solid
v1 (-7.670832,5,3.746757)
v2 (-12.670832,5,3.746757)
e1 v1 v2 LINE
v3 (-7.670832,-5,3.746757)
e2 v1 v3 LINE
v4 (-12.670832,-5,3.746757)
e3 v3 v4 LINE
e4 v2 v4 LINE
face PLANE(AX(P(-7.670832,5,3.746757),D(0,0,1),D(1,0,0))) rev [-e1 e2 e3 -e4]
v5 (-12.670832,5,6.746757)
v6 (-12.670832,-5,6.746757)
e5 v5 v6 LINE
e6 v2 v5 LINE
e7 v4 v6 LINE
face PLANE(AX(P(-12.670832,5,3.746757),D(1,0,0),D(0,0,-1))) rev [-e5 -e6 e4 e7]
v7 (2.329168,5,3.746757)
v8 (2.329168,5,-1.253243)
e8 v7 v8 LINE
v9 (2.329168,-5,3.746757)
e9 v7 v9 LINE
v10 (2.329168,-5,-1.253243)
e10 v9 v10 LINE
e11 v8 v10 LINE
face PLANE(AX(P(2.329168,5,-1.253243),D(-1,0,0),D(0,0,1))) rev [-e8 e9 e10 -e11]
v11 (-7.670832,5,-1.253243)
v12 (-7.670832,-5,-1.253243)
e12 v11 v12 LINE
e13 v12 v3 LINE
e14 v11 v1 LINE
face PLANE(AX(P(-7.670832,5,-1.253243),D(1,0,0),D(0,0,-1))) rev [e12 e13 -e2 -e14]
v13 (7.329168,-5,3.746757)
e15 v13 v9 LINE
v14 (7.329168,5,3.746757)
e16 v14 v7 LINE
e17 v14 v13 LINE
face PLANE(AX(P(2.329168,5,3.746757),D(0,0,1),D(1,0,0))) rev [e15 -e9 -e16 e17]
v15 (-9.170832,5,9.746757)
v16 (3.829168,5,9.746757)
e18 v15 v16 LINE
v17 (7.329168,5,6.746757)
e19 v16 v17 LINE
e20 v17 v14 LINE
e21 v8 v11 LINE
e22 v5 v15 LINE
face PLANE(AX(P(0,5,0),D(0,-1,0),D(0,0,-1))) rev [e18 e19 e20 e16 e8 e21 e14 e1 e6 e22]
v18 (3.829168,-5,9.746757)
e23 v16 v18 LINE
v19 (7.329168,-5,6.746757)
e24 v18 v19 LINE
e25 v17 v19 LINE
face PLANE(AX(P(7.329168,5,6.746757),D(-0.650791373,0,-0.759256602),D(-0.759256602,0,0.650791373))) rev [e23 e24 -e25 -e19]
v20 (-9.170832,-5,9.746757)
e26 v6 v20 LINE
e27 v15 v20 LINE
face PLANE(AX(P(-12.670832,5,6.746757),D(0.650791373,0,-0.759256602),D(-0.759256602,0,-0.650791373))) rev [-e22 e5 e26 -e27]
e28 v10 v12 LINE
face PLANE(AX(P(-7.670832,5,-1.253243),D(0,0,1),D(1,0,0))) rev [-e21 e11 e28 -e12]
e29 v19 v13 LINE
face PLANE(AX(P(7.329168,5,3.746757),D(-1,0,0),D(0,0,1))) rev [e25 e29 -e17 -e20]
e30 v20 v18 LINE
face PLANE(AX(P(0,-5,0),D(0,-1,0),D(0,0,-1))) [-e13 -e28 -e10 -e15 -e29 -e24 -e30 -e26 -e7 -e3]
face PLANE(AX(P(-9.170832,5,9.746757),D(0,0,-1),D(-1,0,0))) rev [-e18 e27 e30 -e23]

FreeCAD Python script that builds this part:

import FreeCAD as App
import Part
import Sketcher

V = App.Vector


def add_polygon(sketch, points):
    """Adds a closed chain of lines whose ends are joined by coincident constraints."""
    first, n = sketch.GeometryCount, len(points)
    for a, b in zip(points, points[1:] + points[:1]):
        sketch.addGeometry(Part.LineSegment(App.Vector(*a, 0), App.Vector(*b, 0)), False)
    for i in range(n):
        sketch.addConstraint(Sketcher.Constraint("Coincident", first + i, 2, first + (i + 1) % n, 1))

doc = App.newDocument("Part")
body = doc.addObject("PartDesign::Body", "Body")

# Sketch on XZ plane
sketch1 = body.newObject("Sketcher::SketchObject", "Sketch")
sketch1.AttachmentSupport = (doc.getObject("XZ_Plane"), [""])
sketch1.MapMode = "FlatFace"
add_polygon(sketch1, [(2.3, -1.3), (-7.7, -1.3), (-7.7, 3.7), (-12.7, 3.7), (-12.7, 6.7), (-9.2, 9.7), (3.8, 9.7), (7.3, 6.7), (7.3, 3.7), (2.3, 3.7)])  # lines 0-9
sketch1.addConstraint([
    Sketcher.Constraint("Horizontal", 0),
    Sketcher.Constraint("Vertical", 1),
    Sketcher.Constraint("Horizontal", 2),
    Sketcher.Constraint("Vertical", 3),
    Sketcher.Constraint("Horizontal", 5),
    Sketcher.Constraint("Vertical", 7),
    Sketcher.Constraint("Horizontal", 8),
    Sketcher.Constraint("Vertical", 9),
    Sketcher.Constraint("Horizontal", 3, 2, 6, 2),
    Sketcher.Constraint("Horizontal", 2, 2, 7, 2),
    Sketcher.Constraint("Equal", 2, 8),
    Sketcher.Constraint("Equal", 8, 1),
    Sketcher.Constraint("Equal", 4, 6),
    Sketcher.Constraint("DistanceX", 0, 2, 0, 1, 10.0),
    Sketcher.Constraint("DistanceX", 2, 2, 2, 1, 5.0),
    Sketcher.Constraint("DistanceX", 5, 1, 5, 2, 13.0),
    Sketcher.Constraint("DistanceY", 3, 1, 3, 2, 3.0),
    Sketcher.Constraint("DistanceY", 3, 2, 4, 2, 3.0),
    Sketcher.Constraint("DistanceX", 0, 2, -1, 1, 7.670832),
    Sketcher.Constraint("DistanceY", 0, 2, -1, 1, 1.253243),
])
pad1 = body.newObject("PartDesign::Pad", "Pad")
pad1.Profile = sketch1
pad1.Length = 10
pad1.Midplane = True

doc.recompute()
